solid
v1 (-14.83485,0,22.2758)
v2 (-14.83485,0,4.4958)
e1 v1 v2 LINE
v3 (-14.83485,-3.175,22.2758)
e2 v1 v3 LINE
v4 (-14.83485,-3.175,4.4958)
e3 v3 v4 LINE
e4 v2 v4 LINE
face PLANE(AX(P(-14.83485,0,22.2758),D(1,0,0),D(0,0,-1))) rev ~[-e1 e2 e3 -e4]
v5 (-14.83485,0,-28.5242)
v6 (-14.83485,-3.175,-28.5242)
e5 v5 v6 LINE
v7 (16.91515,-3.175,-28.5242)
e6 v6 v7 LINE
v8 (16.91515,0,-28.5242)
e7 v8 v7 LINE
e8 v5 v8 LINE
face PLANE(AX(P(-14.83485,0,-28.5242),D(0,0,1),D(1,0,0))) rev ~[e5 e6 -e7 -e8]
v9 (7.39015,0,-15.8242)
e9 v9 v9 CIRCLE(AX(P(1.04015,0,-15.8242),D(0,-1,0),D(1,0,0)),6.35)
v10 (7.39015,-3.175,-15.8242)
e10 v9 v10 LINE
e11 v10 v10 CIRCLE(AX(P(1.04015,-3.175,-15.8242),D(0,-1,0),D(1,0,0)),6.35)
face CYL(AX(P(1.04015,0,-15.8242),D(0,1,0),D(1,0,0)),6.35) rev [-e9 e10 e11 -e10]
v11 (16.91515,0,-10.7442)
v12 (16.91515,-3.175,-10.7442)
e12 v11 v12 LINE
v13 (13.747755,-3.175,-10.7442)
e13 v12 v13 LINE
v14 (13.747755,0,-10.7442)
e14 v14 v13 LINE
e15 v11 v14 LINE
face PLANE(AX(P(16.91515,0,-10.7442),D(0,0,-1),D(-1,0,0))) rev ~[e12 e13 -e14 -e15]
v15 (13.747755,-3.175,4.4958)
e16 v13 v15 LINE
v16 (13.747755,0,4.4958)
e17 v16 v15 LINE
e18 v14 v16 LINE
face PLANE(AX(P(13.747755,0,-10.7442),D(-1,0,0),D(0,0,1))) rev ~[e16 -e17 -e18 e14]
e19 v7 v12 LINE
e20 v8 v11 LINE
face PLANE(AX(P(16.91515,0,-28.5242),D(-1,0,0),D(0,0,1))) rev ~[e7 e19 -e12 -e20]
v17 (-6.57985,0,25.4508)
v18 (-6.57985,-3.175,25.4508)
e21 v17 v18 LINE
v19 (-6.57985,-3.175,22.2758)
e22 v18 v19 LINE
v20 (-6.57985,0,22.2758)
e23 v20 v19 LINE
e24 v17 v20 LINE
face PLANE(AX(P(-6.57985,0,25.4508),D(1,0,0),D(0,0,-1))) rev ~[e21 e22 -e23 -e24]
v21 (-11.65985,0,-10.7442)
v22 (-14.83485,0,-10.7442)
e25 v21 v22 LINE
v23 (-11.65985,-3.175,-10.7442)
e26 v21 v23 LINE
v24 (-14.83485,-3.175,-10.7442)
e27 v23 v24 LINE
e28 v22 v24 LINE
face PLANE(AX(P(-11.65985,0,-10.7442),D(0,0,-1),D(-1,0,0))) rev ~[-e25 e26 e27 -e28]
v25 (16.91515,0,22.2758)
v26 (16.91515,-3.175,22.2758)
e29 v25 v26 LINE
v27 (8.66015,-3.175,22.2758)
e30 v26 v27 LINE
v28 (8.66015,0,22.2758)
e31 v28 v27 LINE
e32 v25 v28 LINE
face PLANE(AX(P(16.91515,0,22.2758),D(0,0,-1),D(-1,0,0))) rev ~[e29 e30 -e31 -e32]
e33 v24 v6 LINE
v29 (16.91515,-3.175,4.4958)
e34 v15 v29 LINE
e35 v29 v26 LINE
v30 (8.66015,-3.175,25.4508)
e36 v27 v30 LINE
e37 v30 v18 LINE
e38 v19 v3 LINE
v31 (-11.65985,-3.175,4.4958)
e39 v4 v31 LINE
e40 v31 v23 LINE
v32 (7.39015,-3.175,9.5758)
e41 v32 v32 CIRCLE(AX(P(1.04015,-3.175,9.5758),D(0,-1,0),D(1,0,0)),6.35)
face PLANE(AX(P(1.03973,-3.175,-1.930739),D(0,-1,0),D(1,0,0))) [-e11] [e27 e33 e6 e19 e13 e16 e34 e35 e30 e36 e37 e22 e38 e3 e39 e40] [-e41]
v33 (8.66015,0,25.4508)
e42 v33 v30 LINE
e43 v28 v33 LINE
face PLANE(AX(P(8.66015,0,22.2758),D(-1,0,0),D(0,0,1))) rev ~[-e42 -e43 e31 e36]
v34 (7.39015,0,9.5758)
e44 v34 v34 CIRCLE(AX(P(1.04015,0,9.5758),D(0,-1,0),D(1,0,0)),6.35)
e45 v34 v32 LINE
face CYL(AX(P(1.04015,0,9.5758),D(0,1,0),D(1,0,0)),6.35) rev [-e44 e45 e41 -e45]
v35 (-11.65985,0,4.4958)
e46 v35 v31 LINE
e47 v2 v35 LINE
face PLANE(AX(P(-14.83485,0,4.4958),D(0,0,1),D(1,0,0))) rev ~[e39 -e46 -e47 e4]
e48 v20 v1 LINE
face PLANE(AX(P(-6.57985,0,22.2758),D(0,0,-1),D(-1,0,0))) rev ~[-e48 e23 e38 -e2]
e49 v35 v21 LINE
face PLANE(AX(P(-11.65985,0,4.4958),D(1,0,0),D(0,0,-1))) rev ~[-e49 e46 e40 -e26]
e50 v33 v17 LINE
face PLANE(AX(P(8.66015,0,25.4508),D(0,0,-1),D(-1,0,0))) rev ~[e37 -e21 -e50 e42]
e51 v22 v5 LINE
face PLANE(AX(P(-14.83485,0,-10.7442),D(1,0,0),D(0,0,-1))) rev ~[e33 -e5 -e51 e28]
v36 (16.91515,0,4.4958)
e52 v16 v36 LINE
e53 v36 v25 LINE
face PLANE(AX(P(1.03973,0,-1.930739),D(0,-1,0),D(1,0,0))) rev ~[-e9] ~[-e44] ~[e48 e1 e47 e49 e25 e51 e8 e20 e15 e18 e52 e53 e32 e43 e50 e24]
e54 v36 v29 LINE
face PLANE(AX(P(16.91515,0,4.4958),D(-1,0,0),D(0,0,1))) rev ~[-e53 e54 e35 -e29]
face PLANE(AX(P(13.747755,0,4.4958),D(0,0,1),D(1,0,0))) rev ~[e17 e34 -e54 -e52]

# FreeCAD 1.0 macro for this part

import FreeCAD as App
import Part
import Sketcher

V = App.Vector
Q = App.Units.Quantity


def add_polygon(sketch, points):
    """Adds a closed chain of lines whose ends are joined by coincident constraints."""
    first, n = sketch.GeometryCount, len(points)
    for a, b in zip(points, points[1:] + points[:1]):
        sketch.addGeometry(Part.LineSegment(App.Vector(*a, 0), App.Vector(*b, 0)), False)
    for i in range(n):
        sketch.addConstraint(Sketcher.Constraint("Coincident", first + i, 2, first + (i + 1) % n, 1))

doc = App.newDocument("Part")
body = doc.addObject("PartDesign::Body", "Body")

# Sketch on XZ plane
sketch1 = body.newObject("Sketcher::SketchObject", "Sketch")
sketch1.AttachmentSupport = (doc.getObject("XZ_Plane"), [""])
sketch1.MapMode = "FlatFace"
add_polygon(sketch1, [(-14.8, -28.5), (16.9, -28.5), (16.9, -10.7), (13.7, -10.7), (13.7, 4.5), (16.9, 4.5), (16.9, 22.3), (8.7, 22.3), (8.7, 25.5), (-6.6, 25.5), (-6.6, 22.3), (-14.8, 22.3), (-14.8, 4.5), (-11.7, 4.5), (-11.7, -10.7), (-14.8, -10.7)])  # lines 0-15
sketch1.addGeometry(Part.Circle(V(1, -15.8, 0), V(0, 0, 1), 6.3), False)  # 16
sketch1.addGeometry(Part.Circle(V(1, 9.6, 0), V(0, 0, 1), 6.3), False)  # 17
sketch1.addConstraint(Sketcher.Constraint("Horizontal", 0))
sketch1.addConstraint(Sketcher.Constraint("Vertical", 1))
sketch1.addConstraint(Sketcher.Constraint("Horizontal", 2))
sketch1.addConstraint(Sketcher.Constraint("Vertical", 3))
sketch1.addConstraint(Sketcher.Constraint("Horizontal", 4))
sketch1.addConstraint(Sketcher.Constraint("Vertical", 5))
sketch1.addConstraint(Sketcher.Constraint("Horizontal", 6))
sketch1.addConstraint(Sketcher.Constraint("Vertical", 7))
sketch1.addConstraint(Sketcher.Constraint("Horizontal", 8))
sketch1.addConstraint(Sketcher.Constraint("Vertical", 9))
sketch1.addConstraint(Sketcher.Constraint("Horizontal", 10))
sketch1.addConstraint(Sketcher.Constraint("Vertical", 11))
sketch1.addConstraint(Sketcher.Constraint("Horizontal", 12))
sketch1.addConstraint(Sketcher.Constraint("Vertical", 13))
sketch1.addConstraint(Sketcher.Constraint("Horizontal", 14))
sketch1.addConstraint(Sketcher.Constraint("Vertical", 15))
sketch1.addConstraint(Sketcher.Constraint("Equal", 16, 17))
sketch1.addConstraint(Sketcher.Constraint("Horizontal", 6, 2, 9, 2))
sketch1.addConstraint(Sketcher.Constraint("Horizontal", 4, 2, 11, 2))
sketch1.addConstraint(Sketcher.Constraint("Horizontal", 2, 2, 13, 2))
sketch1.addConstraint(Sketcher.Constraint("Vertical", 16, 3, 17, 3))
sketch1.addConstraint(Sketcher.Constraint("Vertical", 1, 2, 4, 2))
sketch1.addConstraint(Sketcher.Constraint("Vertical", 11, 2, 14, 2))
sketch1.addConstraint(Sketcher.Constraint("Equal", 6, 10))
sketch1.addConstraint(Sketcher.Constraint("Equal", 8, 3))
sketch1.addConstraint(Sketcher.Constraint("Equal", 1, 5))
sketch1.addConstraint(Sketcher.Constraint("Equal", 14, 7))
sketch1.addConstraint(Sketcher.Constraint("Diameter", 16, Q("0.5 in")))
sketch1.addConstraint(Sketcher.Constraint("DistanceX", 8, 2, 8, 1, Q("0.6 in")))
sketch1.addConstraint(Sketcher.Constraint("DistanceY", 1, 1, 1, 2, Q("0.7 in")))
sketch1.addConstraint(Sketcher.Constraint("DistanceY", 16, 3, 17, 3, Q("1 in")))
sketch1.addConstraint(Sketcher.Constraint("DistanceX", 0, 1, 0, 2, Q("1.25 in")))
sketch1.addConstraint(Sketcher.Constraint("DistanceY", 0, 2, 16, 3, Q("0.5 in")))
sketch1.addConstraint(Sketcher.Constraint("DistanceX", 17, 3, 6, 2, Q("0.3 in")))
sketch1.addConstraint(Sketcher.Constraint("DistanceX", 12, 2, 17, 3, Q("0.5 in")))
sketch1.addConstraint(Sketcher.Constraint("DistanceY", 16, 3, -1, 1, Q("0.623 in")))
sketch1.addConstraint(Sketcher.Constraint("DistanceX", 2, 2, 2, 1, 3.167395))
sketch1.addConstraint(Sketcher.Constraint("DistanceX", -1, 1, 16, 3, 1.04015))
pad1 = body.newObject("PartDesign::Pad", "Pad")
pad1.Profile = sketch1
pad1.Length = Q("0.125 in")

doc.recompute()
